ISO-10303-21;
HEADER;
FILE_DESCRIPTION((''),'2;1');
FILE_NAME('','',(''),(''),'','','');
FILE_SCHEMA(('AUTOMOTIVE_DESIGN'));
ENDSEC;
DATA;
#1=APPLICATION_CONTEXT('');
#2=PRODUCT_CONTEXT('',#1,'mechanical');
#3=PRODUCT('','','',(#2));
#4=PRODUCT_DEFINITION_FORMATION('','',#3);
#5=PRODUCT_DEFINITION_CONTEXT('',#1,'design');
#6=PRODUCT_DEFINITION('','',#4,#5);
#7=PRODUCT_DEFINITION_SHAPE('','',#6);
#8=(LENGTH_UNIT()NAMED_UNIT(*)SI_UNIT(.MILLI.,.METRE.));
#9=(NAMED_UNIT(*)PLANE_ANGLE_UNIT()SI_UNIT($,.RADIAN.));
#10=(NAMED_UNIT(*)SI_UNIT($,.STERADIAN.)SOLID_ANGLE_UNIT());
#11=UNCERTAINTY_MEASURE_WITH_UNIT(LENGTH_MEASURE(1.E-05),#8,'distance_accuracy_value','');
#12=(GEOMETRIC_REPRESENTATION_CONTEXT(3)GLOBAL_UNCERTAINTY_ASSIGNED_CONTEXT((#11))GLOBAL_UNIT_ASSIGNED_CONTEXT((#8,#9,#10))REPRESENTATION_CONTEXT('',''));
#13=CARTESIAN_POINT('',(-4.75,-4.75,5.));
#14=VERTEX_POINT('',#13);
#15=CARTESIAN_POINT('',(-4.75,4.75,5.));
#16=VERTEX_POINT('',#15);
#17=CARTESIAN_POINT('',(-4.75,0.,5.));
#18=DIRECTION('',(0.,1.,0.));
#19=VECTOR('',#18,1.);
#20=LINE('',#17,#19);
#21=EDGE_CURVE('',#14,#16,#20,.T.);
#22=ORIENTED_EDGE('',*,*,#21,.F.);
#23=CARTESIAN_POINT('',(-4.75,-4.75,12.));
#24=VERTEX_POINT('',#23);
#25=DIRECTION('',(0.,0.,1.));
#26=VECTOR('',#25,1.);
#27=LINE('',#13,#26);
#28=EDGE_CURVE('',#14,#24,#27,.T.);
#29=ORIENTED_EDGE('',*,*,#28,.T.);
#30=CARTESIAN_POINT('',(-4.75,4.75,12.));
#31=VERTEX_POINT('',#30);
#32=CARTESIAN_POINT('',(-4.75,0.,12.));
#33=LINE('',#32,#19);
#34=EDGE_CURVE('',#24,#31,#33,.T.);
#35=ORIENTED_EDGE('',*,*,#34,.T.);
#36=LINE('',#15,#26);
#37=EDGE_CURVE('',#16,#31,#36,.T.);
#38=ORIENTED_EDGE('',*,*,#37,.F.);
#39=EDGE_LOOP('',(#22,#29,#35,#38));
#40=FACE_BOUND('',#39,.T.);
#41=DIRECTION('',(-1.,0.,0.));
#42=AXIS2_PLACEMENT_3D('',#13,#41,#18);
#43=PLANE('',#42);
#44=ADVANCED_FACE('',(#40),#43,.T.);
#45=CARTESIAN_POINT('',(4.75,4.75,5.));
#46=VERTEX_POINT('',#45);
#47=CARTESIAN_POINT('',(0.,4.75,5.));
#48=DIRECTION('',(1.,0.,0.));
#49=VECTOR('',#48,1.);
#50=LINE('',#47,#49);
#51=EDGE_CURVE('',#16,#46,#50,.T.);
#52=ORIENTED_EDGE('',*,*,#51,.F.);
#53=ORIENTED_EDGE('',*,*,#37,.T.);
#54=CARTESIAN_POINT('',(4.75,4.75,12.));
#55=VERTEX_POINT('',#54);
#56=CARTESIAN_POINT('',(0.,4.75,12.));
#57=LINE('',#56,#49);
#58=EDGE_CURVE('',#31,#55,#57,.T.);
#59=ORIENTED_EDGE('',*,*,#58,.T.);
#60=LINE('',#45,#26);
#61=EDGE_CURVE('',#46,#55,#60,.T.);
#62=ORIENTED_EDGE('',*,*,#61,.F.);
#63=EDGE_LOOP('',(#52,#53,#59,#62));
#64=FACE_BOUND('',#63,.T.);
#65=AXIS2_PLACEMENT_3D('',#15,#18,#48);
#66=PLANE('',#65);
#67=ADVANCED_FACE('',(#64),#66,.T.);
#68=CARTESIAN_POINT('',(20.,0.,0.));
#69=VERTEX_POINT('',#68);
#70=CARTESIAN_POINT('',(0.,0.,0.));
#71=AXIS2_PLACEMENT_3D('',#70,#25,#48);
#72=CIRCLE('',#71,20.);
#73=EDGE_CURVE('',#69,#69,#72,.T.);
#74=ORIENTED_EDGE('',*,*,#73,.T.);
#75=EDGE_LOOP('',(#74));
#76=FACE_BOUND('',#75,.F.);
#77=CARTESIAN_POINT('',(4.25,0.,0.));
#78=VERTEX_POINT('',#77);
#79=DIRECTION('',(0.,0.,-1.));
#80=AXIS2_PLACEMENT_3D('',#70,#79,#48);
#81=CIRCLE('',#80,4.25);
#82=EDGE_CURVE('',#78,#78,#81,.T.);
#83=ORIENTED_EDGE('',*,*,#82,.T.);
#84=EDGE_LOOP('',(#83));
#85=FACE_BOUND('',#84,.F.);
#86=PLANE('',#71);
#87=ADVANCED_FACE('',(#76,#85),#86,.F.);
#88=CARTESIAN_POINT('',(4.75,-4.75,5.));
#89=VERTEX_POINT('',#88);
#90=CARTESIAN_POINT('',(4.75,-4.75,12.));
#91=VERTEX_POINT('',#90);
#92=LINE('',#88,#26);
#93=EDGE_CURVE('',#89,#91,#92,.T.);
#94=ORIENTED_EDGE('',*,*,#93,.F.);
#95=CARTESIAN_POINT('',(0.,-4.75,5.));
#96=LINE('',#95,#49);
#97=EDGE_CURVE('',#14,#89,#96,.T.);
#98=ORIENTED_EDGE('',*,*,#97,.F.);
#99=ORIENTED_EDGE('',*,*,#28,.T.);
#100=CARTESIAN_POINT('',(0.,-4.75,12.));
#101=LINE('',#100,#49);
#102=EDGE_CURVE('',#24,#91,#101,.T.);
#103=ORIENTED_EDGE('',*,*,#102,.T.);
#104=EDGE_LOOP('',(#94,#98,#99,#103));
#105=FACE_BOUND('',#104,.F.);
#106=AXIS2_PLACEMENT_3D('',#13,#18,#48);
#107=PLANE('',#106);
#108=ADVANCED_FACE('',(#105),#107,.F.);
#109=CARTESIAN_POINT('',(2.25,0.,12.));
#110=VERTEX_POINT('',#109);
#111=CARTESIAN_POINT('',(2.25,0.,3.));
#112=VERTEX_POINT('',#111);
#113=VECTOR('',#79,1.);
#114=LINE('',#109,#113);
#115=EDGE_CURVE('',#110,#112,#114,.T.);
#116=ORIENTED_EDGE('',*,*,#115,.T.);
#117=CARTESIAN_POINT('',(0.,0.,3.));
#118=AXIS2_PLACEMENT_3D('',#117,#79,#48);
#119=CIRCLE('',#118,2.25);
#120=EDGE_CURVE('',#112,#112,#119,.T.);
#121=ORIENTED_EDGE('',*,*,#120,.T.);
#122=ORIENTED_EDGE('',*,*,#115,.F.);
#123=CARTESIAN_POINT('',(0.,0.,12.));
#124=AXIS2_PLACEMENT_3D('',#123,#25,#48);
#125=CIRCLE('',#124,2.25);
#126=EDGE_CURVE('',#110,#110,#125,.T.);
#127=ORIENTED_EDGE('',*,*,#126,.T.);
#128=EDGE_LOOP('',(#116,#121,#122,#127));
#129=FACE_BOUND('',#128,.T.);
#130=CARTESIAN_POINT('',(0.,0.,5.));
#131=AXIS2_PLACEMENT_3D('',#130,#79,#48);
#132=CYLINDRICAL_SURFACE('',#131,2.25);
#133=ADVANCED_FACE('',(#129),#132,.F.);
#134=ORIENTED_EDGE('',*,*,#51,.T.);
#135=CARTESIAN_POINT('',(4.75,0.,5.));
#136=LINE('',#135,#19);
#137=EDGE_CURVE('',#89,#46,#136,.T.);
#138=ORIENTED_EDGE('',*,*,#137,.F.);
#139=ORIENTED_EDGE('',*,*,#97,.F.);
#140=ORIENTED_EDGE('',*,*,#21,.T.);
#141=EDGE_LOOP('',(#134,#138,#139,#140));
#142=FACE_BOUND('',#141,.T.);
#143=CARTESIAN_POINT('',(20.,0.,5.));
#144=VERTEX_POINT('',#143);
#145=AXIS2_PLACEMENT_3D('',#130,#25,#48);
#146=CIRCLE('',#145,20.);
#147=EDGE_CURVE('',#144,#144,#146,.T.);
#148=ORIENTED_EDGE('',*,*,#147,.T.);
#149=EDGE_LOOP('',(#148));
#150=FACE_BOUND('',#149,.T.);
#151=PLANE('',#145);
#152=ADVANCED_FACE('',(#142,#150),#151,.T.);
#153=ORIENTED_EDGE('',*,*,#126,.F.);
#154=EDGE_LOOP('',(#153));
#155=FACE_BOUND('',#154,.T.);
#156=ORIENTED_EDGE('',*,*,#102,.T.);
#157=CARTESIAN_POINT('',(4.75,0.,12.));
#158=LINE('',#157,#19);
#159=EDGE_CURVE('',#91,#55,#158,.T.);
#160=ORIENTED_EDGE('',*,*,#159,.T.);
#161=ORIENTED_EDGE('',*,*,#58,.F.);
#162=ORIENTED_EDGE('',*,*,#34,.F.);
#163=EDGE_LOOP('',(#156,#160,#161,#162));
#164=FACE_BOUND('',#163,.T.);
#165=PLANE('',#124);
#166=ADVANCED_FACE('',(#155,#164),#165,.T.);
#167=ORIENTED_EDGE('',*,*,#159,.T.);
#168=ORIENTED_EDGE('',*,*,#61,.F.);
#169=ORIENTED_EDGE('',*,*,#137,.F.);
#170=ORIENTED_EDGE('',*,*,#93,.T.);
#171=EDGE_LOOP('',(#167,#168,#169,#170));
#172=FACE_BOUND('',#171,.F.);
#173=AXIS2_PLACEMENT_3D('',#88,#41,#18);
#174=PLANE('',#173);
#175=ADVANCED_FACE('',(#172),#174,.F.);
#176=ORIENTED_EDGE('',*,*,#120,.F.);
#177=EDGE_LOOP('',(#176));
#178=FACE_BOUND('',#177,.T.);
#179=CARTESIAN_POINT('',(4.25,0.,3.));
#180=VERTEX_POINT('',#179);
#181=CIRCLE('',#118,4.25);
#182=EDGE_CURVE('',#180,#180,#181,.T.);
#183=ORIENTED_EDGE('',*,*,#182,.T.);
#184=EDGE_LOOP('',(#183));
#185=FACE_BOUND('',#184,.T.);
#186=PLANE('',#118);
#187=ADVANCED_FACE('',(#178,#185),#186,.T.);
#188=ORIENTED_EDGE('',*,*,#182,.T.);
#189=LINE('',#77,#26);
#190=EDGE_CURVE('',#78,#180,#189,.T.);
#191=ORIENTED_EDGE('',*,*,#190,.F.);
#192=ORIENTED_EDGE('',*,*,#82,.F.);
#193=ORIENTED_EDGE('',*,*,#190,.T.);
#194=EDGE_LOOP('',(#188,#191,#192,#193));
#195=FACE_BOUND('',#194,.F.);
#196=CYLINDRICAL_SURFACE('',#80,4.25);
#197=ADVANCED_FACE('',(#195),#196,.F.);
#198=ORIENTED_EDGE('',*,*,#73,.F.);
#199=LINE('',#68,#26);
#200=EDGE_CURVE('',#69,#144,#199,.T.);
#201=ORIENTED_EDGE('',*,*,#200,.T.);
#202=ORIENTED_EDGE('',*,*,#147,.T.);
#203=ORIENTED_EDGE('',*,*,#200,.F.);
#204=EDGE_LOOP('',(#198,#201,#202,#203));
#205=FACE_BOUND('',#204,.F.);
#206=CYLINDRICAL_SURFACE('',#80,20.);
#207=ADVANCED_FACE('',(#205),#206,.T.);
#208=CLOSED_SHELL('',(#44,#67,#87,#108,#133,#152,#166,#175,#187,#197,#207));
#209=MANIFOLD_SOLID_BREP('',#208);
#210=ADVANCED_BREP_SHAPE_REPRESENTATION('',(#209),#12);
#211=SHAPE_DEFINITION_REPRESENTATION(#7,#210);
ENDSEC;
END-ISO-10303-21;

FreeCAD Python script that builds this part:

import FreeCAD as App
import Part
import Sketcher

V = App.Vector
Q = App.Units.Quantity


def add_polygon(sketch, points):
    """Adds a closed chain of lines whose ends are joined by coincident constraints."""
    first, n = sketch.GeometryCount, len(points)
    for a, b in zip(points, points[1:] + points[:1]):
        sketch.addGeometry(Part.LineSegment(App.Vector(*a, 0), App.Vector(*b, 0)), False)
    for i in range(n):
        sketch.addConstraint(Sketcher.Constraint("Coincident", first + i, 2, first + (i + 1) % n, 1))

doc = App.newDocument("Part")
body = doc.addObject("PartDesign::Body", "Body")

sketch1 = body.newObject("Sketcher::SketchObject", "Sketch")
sketch1.AttachmentSupport = (doc.getObject("XY_Plane"), [""])
sketch1.MapMode = "FlatFace"
sketch1.addGeometry([
    Part.Circle(V(0, 0, 0), V(0, 0, 1), 20),
    Part.Circle(V(0, 0, 0), V(0, 0, 1), 2.2),
], False)
sketch1.addConstraint([
    Sketcher.Constraint("Coincident", 0, 3, -1, 1),
    Sketcher.Constraint("Coincident", 1, 3, -1, 1),
    Sketcher.Constraint("Diameter", 0, Q("40 mm")),
    Sketcher.Constraint("Diameter", 1, Q("4.5 mm")),
])
pad1 = body.newObject("PartDesign::Pad", "Pad")
pad1.Profile = sketch1
pad1.Length = 5

sketch2 = body.newObject("Sketcher::SketchObject", "Sketch001")
sketch2.AttachmentSupport = (doc.getObject("XY_Plane"), [""])
sketch2.MapMode = "FlatFace"
sketch2.AttachmentOffset = App.Placement(V(0, 0, 5), App.Rotation())
add_polygon(sketch2, [(-4.8, 4.8), (-4.8, -4.8), (4.8, -4.8), (4.8, 4.8)])
sketch2.addGeometry(Part.Circle(V(0, 0, 0), V(0, 0, 1), 2.2), False)
sketch2.addConstraint([
    Sketcher.Constraint("Vertical", 0),
    Sketcher.Constraint("Horizontal", 1),
    Sketcher.Constraint("Vertical", 2),
    Sketcher.Constraint("Horizontal", 3),
    Sketcher.Constraint("Coincident", 4, 3, -1, 1),
    Sketcher.Constraint("Symmetric", 0, 2, 2, 2, -1, 1),
    Sketcher.Constraint("Equal", 3, 0),
    Sketcher.Constraint("Diameter", 4, Q("4.5 mm")),
    Sketcher.Constraint("DistanceX", 1, 1, 1, 2, Q("9.5 mm")),
])
pad2 = body.newObject("PartDesign::Pad", "Pad001")
pad2.Profile = sketch2
pad2.Length = 7

sketch3 = body.newObject("Sketcher::SketchObject", "Sketch002")
sketch3.AttachmentSupport = (doc.getObject("XY_Plane"), [""])
sketch3.MapMode = "FlatFace"
sketch3.addGeometry([
    Part.Circle(V(0, 0, 0), V(0, 0, 1), 4.2),
    Part.Circle(V(0, 0, 0), V(0, 0, 1), 2.2),
], False)
sketch3.addConstraint([
    Sketcher.Constraint("Coincident", 0, 3, -1, 1),
    Sketcher.Constraint("Coincident", 1, 3, -1, 1),
    Sketcher.Constraint("Diameter", 0, Q("8.5 mm")),
    Sketcher.Constraint("Diameter", 1, Q("4.5 mm")),
])
pocket1 = body.newObject("PartDesign::Pocket", "Pocket")
pocket1.Profile = sketch3
pocket1.Length = 3
pocket1.Reversed = True

doc.recompute()
